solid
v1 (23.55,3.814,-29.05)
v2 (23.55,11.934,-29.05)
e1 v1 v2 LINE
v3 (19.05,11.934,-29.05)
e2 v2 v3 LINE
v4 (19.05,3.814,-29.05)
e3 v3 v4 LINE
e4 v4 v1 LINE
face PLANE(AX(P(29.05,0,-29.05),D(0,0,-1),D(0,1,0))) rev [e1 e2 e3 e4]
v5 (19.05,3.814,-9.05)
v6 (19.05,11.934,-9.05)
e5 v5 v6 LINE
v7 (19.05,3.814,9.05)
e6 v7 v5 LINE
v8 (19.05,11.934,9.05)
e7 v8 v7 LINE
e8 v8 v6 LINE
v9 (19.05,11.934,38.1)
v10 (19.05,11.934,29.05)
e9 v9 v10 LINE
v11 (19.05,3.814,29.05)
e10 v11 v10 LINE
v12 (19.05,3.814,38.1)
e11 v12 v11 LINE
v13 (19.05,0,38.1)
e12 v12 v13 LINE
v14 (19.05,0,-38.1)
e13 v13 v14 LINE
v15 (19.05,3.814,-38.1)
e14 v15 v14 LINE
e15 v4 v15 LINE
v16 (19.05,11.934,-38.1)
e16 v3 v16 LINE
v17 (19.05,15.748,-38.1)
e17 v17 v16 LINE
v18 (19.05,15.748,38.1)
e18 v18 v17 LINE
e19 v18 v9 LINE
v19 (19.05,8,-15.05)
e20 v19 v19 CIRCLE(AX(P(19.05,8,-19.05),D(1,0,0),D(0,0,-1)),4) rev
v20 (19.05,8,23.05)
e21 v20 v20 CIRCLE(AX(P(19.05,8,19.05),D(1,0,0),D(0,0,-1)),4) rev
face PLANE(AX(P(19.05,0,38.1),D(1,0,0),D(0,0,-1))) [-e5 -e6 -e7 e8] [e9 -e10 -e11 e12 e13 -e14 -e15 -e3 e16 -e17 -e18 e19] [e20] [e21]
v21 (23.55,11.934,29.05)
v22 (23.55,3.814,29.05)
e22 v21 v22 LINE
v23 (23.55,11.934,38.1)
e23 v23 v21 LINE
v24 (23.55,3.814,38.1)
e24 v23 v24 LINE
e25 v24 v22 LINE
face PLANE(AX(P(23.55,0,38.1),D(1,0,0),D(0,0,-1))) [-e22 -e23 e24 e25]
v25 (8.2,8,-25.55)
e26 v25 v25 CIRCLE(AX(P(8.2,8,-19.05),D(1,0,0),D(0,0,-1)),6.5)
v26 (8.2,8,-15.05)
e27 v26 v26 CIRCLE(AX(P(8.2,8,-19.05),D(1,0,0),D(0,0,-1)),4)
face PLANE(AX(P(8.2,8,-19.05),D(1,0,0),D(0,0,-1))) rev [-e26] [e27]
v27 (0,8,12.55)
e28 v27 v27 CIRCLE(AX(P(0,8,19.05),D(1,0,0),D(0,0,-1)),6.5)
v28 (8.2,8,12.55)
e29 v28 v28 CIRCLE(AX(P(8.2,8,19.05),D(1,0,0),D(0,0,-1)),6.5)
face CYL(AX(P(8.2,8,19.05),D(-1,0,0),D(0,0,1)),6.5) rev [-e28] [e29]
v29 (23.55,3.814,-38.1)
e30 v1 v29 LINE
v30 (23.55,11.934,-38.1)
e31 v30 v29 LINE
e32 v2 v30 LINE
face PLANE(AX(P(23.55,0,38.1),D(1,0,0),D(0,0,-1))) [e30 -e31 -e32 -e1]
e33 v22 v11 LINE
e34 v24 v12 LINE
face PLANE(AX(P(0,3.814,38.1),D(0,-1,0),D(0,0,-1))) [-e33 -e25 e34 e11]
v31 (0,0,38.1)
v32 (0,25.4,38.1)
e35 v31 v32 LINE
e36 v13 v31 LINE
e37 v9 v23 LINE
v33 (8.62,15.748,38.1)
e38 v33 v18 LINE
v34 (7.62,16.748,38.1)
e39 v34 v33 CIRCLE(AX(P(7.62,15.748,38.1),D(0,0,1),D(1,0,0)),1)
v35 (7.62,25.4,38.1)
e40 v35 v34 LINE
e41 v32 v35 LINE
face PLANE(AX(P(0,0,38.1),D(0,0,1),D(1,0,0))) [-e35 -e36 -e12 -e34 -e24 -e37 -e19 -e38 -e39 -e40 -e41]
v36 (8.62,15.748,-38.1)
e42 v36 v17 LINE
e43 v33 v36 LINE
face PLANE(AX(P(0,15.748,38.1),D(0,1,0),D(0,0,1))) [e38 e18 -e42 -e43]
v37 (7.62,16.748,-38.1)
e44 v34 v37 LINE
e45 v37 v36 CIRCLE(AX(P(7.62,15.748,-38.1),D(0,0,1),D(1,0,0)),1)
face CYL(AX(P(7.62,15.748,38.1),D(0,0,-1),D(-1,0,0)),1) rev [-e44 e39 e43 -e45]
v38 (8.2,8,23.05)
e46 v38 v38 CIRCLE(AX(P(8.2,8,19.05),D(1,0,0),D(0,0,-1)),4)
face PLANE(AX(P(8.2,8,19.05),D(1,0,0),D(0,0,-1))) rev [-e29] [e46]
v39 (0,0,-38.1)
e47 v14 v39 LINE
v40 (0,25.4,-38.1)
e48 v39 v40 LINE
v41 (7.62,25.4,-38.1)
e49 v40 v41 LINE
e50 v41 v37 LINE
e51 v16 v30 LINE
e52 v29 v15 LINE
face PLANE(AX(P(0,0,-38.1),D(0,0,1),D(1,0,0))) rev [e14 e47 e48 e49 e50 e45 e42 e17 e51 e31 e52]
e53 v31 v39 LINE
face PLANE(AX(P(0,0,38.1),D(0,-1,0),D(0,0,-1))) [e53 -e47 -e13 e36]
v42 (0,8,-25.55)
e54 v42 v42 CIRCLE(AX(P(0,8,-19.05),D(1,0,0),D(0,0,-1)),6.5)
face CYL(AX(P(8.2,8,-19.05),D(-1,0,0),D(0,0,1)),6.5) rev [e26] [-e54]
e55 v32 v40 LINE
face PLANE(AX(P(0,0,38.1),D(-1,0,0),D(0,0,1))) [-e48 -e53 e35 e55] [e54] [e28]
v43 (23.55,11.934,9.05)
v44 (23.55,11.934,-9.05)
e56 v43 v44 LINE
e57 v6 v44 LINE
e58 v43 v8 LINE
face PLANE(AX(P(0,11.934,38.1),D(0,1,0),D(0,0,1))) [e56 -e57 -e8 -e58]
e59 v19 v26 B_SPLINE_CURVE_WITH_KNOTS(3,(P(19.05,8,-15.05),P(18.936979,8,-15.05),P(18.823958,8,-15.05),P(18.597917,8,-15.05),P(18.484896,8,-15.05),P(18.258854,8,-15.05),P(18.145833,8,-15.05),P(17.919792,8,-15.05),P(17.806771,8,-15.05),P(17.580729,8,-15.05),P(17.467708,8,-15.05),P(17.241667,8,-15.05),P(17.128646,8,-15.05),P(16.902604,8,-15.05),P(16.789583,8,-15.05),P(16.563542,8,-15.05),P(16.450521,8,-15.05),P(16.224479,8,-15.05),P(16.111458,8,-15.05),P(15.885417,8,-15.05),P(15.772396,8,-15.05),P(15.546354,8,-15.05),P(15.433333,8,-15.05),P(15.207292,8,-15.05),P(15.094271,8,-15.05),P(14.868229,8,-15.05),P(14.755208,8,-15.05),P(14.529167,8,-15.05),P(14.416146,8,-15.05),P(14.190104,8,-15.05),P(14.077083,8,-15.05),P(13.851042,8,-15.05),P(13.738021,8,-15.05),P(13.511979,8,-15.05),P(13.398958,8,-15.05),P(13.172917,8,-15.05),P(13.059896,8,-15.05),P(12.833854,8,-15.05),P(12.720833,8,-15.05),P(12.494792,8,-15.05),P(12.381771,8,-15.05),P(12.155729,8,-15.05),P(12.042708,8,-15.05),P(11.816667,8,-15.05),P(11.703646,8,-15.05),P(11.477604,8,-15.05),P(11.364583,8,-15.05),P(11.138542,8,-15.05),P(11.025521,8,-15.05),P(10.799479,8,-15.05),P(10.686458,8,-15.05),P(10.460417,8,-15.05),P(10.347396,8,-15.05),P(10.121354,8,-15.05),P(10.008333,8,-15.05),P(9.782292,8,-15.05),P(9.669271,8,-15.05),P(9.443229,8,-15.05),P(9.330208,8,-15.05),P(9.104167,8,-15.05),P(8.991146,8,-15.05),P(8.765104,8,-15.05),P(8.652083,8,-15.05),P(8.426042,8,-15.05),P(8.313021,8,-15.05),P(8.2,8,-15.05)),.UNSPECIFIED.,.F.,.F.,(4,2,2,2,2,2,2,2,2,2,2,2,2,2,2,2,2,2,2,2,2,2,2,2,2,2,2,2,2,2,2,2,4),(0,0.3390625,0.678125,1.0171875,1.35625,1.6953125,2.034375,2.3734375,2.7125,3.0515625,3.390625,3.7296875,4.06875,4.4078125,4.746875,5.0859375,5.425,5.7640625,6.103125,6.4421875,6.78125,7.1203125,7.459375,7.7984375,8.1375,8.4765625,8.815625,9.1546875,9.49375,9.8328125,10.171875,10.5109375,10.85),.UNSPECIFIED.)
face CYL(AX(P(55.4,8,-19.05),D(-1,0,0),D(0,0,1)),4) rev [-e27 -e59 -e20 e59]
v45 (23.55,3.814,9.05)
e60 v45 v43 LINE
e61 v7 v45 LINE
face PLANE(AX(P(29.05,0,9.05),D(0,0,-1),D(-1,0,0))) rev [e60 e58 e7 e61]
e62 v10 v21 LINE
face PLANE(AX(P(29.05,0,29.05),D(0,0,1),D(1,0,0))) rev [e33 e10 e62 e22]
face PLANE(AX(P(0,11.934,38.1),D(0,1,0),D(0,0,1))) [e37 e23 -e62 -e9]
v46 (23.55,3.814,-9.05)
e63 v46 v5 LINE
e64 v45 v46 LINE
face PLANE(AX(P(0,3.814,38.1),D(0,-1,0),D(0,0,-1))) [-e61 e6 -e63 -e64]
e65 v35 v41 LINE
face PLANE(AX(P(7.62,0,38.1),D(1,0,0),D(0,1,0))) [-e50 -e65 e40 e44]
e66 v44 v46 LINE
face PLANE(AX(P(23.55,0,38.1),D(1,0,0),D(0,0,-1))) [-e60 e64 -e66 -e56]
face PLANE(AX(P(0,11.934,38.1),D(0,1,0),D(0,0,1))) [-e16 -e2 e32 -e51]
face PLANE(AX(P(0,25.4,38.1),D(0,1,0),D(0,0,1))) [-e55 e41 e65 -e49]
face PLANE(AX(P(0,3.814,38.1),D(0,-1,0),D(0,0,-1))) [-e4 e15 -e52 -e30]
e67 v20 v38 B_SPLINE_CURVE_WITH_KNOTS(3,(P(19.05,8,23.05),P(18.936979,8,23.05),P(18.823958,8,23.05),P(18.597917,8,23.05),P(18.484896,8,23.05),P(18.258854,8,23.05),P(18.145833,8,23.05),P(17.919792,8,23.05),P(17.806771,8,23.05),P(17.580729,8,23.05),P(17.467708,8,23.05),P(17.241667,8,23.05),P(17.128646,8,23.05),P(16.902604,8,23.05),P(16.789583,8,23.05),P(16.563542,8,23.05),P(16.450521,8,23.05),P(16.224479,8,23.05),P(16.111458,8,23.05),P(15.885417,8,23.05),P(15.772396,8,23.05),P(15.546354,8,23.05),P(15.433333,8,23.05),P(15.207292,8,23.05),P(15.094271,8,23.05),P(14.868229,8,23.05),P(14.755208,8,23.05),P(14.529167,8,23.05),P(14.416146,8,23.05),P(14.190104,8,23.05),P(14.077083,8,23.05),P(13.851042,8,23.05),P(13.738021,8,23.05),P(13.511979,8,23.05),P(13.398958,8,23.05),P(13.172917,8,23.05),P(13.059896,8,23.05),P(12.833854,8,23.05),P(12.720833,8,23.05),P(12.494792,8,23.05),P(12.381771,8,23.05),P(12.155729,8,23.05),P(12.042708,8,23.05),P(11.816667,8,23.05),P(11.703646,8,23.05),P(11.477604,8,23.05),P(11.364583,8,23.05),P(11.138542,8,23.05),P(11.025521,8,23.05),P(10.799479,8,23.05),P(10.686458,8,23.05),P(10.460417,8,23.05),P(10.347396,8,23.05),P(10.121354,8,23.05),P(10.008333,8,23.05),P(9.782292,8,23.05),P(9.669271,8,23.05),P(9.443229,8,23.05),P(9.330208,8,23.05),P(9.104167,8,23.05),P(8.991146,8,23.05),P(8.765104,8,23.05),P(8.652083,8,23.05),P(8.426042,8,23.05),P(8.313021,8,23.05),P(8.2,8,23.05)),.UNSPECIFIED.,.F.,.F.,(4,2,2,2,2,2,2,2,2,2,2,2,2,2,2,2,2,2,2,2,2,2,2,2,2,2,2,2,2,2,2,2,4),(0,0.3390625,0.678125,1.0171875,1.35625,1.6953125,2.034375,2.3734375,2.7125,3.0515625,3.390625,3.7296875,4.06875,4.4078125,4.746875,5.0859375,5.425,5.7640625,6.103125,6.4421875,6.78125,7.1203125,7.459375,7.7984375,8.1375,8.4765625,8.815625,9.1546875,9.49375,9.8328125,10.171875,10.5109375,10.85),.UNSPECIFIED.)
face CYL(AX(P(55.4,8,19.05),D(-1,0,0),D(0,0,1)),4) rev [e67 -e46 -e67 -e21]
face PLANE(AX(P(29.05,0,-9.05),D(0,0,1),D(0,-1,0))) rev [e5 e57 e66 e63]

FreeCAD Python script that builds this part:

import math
import FreeCAD as App
import Part
import Sketcher


def add_polygon(sketch, points):
    """Adds a closed chain of lines whose ends are joined by coincident constraints."""
    first, n = sketch.GeometryCount, len(points)
    for a, b in zip(points, points[1:] + points[:1]):
        sketch.addGeometry(Part.LineSegment(App.Vector(*a, 0), App.Vector(*b, 0)), False)
    for i in range(n):
        sketch.addConstraint(Sketcher.Constraint("Coincident", first + i, 2, first + (i + 1) % n, 1))

doc = App.newDocument("Part")
body = doc.addObject("PartDesign::Body", "Body")

sketch1 = body.newObject("Sketcher::SketchObject", "Sketch")
sketch1.AttachmentSupport = (doc.getObject("XY_Plane"), [""])
sketch1.MapMode = "FlatFace"
sketch1.addGeometry([
    Part.ArcOfCircle(Part.Circle(App.Vector(7.62, 15.748, 0), App.Vector(0, 0, 1), 1), math.radians(90), math.radians(360)),
    Part.LineSegment(App.Vector(7.62, 16.748, 0), App.Vector(7.62, 25.4, 0)),
    Part.LineSegment(App.Vector(7.62, 25.4, 0), App.Vector(0, 25.4, 0)),
    Part.LineSegment(App.Vector(0, 25.4, 0), App.Vector(0, 0, 0)),
    Part.LineSegment(App.Vector(0, 0, 0), App.Vector(19.05, 0, 0)),
    Part.LineSegment(App.Vector(19.05, 0, 0), App.Vector(19.05, 3.814, 0)),
    Part.LineSegment(App.Vector(19.05, 3.814, 0), App.Vector(23.55, 3.814, 0)),
    Part.LineSegment(App.Vector(23.55, 3.814, 0), App.Vector(23.55, 11.934, 0)),
    Part.LineSegment(App.Vector(23.55, 11.934, 0), App.Vector(19.05, 11.934, 0)),
    Part.LineSegment(App.Vector(19.05, 11.934, 0), App.Vector(19.05, 15.748, 0)),
    Part.LineSegment(App.Vector(19.05, 15.748, 0), App.Vector(8.62, 15.748, 0)),
], False)
sketch1.addConstraint([
    Sketcher.Constraint("Coincident", 0, 1, 1, 1),
    Sketcher.Constraint("Coincident", 1, 2, 2, 1),
    Sketcher.Constraint("Coincident", 2, 2, 3, 1),
    Sketcher.Constraint("Coincident", 3, 2, 4, 1),
    Sketcher.Constraint("Coincident", 4, 2, 5, 1),
    Sketcher.Constraint("Coincident", 5, 2, 6, 1),
    Sketcher.Constraint("Coincident", 6, 2, 7, 1),
    Sketcher.Constraint("Coincident", 7, 2, 8, 1),
    Sketcher.Constraint("Coincident", 8, 2, 9, 1),
    Sketcher.Constraint("Coincident", 9, 2, 10, 1),
    Sketcher.Constraint("Coincident", 10, 2, 0, 2),
    Sketcher.Constraint("Vertical", 1),
    Sketcher.Constraint("Horizontal", 2),
    Sketcher.Constraint("Vertical", 3),
    Sketcher.Constraint("Horizontal", 4),
    Sketcher.Constraint("Vertical", 5),
    Sketcher.Constraint("Horizontal", 6),
    Sketcher.Constraint("Vertical", 7),
    Sketcher.Constraint("Horizontal", 8),
    Sketcher.Constraint("Vertical", 9),
    Sketcher.Constraint("Horizontal", 10),
    Sketcher.Constraint("Coincident", 3, 2, -1, 1),
    Sketcher.Constraint("Horizontal", 0, 3, 9, 2),
    Sketcher.Constraint("Vertical", 5, 2, 8, 2),
    Sketcher.Constraint("Equal", 5, 9),
    Sketcher.Constraint("Radius", 0, 1.0),
    Sketcher.Constraint("DistanceX", 6, 1, 6, 2, 4.5),
    Sketcher.Constraint("DistanceY", 3, 2, 3, 1, 25.4),
    Sketcher.Constraint("DistanceX", 0, 1, 10, 2, 1.0),
    Sketcher.Constraint("DistanceX", 2, 2, 2, 1, 7.62),
    Sketcher.Constraint("DistanceX", 4, 1, 4, 2, 19.05),
    Sketcher.Constraint("DistanceY", 7, 1, 7, 2, 8.12),
    Sketcher.Constraint("DistanceY", 1, 1, 1, 2, 8.652),
])
pad1 = body.newObject("PartDesign::Pad", "Pad")
pad1.Profile = sketch1
pad1.Type = "TwoLengths"
pad1.Length = 38.1
pad1.Length2 = 38.1

sketch2 = body.newObject("Sketcher::SketchObject", "Sketch001")
sketch2.AttachmentSupport = (doc.getObject("YZ_Plane"), [""])
sketch2.MapMode = "FlatFace"
sketch2.addGeometry([
    Part.Circle(App.Vector(8, 19.05, 0), App.Vector(0, 0, 1), 4),
    Part.Circle(App.Vector(8, -19.05, 0), App.Vector(0, 0, 1), 4),
], False)
sketch2.addConstraint([
    Sketcher.Constraint("Equal", 0, 1),
    Sketcher.Constraint("Symmetric", 0, 3, 1, 3, -1),
    Sketcher.Constraint("Diameter", 0, 8.0),
    Sketcher.Constraint("DistanceX", -1, 1, 0, 3, 8.0),
    Sketcher.Constraint("DistanceY", 1, 3, 0, 3, 38.1),
])
pocket1 = body.newObject("PartDesign::Pocket", "Pocket")
pocket1.Profile = sketch2
pocket1.Length = 55.4
pocket1.Reversed = True

sketch3 = body.newObject("Sketcher::SketchObject", "Sketch002")
sketch3.AttachmentSupport = (doc.getObject("YZ_Plane"), [""])
sketch3.MapMode = "FlatFace"
sketch3.addGeometry([
    Part.Circle(App.Vector(8, 19.05, 0), App.Vector(0, 0, 1), 6.5),
    Part.Circle(App.Vector(8, -19.05, 0), App.Vector(0, 0, 1), 6.5),
], False)
sketch3.addConstraint([
    Sketcher.Constraint("Equal", 0, 1),
    Sketcher.Constraint("Symmetric", 0, 3, 1, 3, -1),
    Sketcher.Constraint("Diameter", 0, 13.0),
    Sketcher.Constraint("DistanceX", -1, 1, 0, 3, 8.0),
    Sketcher.Constraint("DistanceY", 1, 3, 0, 3, 38.1),
])
pocket2 = body.newObject("PartDesign::Pocket", "Pocket001")
pocket2.Profile = sketch3
pocket2.Length = 8.2
pocket2.Reversed = True

sketch4 = body.newObject("Sketcher::SketchObject", "Sketch003")
sketch4.AttachmentSupport = (doc.getObject("YZ_Plane"), [""])
sketch4.MapMode = "FlatFace"
sketch4.AttachmentOffset = App.Placement(App.Vector(0, 0, 19.05), App.Rotation())
add_polygon(sketch4, [(15.5, 29.05), (0.5, 29.05), (0.5, 9.05), (15.5, 9.05)])
add_polygon(sketch4, [(15.5, -9.05), (0.5, -9.05), (0.5, -29.05), (15.5, -29.05)])
sketch4.addConstraint([
    Sketcher.Constraint("Horizontal", 0),
    Sketcher.Constraint("Vertical", 1),
    Sketcher.Constraint("Horizontal", 2),
    Sketcher.Constraint("Vertical", 3),
    Sketcher.Constraint("Horizontal", 4),
    Sketcher.Constraint("Vertical", 5),
    Sketcher.Constraint("Horizontal", 6),
    Sketcher.Constraint("Vertical", 7),
    Sketcher.Constraint("Symmetric", 1, 2, 4, 2, -1),
    Sketcher.Constraint("Symmetric", 3, 2, 6, 2, -1),
    Sketcher.Constraint("DistanceX", 0, 2, 0, 1, 15.0),
    Sketcher.Constraint("DistanceY", 1, 2, 1, 1, 20.0),
    Sketcher.Constraint("DistanceX", -1, 1, 0, 2, 0.5),
    Sketcher.Constraint("DistanceY", 4, 2, 1, 2, 18.1),
])
pocket3 = body.newObject("PartDesign::Pocket", "Pocket002")
pocket3.Profile = sketch4
pocket3.Length = 10
pocket3.Reversed = True

doc.recompute()
